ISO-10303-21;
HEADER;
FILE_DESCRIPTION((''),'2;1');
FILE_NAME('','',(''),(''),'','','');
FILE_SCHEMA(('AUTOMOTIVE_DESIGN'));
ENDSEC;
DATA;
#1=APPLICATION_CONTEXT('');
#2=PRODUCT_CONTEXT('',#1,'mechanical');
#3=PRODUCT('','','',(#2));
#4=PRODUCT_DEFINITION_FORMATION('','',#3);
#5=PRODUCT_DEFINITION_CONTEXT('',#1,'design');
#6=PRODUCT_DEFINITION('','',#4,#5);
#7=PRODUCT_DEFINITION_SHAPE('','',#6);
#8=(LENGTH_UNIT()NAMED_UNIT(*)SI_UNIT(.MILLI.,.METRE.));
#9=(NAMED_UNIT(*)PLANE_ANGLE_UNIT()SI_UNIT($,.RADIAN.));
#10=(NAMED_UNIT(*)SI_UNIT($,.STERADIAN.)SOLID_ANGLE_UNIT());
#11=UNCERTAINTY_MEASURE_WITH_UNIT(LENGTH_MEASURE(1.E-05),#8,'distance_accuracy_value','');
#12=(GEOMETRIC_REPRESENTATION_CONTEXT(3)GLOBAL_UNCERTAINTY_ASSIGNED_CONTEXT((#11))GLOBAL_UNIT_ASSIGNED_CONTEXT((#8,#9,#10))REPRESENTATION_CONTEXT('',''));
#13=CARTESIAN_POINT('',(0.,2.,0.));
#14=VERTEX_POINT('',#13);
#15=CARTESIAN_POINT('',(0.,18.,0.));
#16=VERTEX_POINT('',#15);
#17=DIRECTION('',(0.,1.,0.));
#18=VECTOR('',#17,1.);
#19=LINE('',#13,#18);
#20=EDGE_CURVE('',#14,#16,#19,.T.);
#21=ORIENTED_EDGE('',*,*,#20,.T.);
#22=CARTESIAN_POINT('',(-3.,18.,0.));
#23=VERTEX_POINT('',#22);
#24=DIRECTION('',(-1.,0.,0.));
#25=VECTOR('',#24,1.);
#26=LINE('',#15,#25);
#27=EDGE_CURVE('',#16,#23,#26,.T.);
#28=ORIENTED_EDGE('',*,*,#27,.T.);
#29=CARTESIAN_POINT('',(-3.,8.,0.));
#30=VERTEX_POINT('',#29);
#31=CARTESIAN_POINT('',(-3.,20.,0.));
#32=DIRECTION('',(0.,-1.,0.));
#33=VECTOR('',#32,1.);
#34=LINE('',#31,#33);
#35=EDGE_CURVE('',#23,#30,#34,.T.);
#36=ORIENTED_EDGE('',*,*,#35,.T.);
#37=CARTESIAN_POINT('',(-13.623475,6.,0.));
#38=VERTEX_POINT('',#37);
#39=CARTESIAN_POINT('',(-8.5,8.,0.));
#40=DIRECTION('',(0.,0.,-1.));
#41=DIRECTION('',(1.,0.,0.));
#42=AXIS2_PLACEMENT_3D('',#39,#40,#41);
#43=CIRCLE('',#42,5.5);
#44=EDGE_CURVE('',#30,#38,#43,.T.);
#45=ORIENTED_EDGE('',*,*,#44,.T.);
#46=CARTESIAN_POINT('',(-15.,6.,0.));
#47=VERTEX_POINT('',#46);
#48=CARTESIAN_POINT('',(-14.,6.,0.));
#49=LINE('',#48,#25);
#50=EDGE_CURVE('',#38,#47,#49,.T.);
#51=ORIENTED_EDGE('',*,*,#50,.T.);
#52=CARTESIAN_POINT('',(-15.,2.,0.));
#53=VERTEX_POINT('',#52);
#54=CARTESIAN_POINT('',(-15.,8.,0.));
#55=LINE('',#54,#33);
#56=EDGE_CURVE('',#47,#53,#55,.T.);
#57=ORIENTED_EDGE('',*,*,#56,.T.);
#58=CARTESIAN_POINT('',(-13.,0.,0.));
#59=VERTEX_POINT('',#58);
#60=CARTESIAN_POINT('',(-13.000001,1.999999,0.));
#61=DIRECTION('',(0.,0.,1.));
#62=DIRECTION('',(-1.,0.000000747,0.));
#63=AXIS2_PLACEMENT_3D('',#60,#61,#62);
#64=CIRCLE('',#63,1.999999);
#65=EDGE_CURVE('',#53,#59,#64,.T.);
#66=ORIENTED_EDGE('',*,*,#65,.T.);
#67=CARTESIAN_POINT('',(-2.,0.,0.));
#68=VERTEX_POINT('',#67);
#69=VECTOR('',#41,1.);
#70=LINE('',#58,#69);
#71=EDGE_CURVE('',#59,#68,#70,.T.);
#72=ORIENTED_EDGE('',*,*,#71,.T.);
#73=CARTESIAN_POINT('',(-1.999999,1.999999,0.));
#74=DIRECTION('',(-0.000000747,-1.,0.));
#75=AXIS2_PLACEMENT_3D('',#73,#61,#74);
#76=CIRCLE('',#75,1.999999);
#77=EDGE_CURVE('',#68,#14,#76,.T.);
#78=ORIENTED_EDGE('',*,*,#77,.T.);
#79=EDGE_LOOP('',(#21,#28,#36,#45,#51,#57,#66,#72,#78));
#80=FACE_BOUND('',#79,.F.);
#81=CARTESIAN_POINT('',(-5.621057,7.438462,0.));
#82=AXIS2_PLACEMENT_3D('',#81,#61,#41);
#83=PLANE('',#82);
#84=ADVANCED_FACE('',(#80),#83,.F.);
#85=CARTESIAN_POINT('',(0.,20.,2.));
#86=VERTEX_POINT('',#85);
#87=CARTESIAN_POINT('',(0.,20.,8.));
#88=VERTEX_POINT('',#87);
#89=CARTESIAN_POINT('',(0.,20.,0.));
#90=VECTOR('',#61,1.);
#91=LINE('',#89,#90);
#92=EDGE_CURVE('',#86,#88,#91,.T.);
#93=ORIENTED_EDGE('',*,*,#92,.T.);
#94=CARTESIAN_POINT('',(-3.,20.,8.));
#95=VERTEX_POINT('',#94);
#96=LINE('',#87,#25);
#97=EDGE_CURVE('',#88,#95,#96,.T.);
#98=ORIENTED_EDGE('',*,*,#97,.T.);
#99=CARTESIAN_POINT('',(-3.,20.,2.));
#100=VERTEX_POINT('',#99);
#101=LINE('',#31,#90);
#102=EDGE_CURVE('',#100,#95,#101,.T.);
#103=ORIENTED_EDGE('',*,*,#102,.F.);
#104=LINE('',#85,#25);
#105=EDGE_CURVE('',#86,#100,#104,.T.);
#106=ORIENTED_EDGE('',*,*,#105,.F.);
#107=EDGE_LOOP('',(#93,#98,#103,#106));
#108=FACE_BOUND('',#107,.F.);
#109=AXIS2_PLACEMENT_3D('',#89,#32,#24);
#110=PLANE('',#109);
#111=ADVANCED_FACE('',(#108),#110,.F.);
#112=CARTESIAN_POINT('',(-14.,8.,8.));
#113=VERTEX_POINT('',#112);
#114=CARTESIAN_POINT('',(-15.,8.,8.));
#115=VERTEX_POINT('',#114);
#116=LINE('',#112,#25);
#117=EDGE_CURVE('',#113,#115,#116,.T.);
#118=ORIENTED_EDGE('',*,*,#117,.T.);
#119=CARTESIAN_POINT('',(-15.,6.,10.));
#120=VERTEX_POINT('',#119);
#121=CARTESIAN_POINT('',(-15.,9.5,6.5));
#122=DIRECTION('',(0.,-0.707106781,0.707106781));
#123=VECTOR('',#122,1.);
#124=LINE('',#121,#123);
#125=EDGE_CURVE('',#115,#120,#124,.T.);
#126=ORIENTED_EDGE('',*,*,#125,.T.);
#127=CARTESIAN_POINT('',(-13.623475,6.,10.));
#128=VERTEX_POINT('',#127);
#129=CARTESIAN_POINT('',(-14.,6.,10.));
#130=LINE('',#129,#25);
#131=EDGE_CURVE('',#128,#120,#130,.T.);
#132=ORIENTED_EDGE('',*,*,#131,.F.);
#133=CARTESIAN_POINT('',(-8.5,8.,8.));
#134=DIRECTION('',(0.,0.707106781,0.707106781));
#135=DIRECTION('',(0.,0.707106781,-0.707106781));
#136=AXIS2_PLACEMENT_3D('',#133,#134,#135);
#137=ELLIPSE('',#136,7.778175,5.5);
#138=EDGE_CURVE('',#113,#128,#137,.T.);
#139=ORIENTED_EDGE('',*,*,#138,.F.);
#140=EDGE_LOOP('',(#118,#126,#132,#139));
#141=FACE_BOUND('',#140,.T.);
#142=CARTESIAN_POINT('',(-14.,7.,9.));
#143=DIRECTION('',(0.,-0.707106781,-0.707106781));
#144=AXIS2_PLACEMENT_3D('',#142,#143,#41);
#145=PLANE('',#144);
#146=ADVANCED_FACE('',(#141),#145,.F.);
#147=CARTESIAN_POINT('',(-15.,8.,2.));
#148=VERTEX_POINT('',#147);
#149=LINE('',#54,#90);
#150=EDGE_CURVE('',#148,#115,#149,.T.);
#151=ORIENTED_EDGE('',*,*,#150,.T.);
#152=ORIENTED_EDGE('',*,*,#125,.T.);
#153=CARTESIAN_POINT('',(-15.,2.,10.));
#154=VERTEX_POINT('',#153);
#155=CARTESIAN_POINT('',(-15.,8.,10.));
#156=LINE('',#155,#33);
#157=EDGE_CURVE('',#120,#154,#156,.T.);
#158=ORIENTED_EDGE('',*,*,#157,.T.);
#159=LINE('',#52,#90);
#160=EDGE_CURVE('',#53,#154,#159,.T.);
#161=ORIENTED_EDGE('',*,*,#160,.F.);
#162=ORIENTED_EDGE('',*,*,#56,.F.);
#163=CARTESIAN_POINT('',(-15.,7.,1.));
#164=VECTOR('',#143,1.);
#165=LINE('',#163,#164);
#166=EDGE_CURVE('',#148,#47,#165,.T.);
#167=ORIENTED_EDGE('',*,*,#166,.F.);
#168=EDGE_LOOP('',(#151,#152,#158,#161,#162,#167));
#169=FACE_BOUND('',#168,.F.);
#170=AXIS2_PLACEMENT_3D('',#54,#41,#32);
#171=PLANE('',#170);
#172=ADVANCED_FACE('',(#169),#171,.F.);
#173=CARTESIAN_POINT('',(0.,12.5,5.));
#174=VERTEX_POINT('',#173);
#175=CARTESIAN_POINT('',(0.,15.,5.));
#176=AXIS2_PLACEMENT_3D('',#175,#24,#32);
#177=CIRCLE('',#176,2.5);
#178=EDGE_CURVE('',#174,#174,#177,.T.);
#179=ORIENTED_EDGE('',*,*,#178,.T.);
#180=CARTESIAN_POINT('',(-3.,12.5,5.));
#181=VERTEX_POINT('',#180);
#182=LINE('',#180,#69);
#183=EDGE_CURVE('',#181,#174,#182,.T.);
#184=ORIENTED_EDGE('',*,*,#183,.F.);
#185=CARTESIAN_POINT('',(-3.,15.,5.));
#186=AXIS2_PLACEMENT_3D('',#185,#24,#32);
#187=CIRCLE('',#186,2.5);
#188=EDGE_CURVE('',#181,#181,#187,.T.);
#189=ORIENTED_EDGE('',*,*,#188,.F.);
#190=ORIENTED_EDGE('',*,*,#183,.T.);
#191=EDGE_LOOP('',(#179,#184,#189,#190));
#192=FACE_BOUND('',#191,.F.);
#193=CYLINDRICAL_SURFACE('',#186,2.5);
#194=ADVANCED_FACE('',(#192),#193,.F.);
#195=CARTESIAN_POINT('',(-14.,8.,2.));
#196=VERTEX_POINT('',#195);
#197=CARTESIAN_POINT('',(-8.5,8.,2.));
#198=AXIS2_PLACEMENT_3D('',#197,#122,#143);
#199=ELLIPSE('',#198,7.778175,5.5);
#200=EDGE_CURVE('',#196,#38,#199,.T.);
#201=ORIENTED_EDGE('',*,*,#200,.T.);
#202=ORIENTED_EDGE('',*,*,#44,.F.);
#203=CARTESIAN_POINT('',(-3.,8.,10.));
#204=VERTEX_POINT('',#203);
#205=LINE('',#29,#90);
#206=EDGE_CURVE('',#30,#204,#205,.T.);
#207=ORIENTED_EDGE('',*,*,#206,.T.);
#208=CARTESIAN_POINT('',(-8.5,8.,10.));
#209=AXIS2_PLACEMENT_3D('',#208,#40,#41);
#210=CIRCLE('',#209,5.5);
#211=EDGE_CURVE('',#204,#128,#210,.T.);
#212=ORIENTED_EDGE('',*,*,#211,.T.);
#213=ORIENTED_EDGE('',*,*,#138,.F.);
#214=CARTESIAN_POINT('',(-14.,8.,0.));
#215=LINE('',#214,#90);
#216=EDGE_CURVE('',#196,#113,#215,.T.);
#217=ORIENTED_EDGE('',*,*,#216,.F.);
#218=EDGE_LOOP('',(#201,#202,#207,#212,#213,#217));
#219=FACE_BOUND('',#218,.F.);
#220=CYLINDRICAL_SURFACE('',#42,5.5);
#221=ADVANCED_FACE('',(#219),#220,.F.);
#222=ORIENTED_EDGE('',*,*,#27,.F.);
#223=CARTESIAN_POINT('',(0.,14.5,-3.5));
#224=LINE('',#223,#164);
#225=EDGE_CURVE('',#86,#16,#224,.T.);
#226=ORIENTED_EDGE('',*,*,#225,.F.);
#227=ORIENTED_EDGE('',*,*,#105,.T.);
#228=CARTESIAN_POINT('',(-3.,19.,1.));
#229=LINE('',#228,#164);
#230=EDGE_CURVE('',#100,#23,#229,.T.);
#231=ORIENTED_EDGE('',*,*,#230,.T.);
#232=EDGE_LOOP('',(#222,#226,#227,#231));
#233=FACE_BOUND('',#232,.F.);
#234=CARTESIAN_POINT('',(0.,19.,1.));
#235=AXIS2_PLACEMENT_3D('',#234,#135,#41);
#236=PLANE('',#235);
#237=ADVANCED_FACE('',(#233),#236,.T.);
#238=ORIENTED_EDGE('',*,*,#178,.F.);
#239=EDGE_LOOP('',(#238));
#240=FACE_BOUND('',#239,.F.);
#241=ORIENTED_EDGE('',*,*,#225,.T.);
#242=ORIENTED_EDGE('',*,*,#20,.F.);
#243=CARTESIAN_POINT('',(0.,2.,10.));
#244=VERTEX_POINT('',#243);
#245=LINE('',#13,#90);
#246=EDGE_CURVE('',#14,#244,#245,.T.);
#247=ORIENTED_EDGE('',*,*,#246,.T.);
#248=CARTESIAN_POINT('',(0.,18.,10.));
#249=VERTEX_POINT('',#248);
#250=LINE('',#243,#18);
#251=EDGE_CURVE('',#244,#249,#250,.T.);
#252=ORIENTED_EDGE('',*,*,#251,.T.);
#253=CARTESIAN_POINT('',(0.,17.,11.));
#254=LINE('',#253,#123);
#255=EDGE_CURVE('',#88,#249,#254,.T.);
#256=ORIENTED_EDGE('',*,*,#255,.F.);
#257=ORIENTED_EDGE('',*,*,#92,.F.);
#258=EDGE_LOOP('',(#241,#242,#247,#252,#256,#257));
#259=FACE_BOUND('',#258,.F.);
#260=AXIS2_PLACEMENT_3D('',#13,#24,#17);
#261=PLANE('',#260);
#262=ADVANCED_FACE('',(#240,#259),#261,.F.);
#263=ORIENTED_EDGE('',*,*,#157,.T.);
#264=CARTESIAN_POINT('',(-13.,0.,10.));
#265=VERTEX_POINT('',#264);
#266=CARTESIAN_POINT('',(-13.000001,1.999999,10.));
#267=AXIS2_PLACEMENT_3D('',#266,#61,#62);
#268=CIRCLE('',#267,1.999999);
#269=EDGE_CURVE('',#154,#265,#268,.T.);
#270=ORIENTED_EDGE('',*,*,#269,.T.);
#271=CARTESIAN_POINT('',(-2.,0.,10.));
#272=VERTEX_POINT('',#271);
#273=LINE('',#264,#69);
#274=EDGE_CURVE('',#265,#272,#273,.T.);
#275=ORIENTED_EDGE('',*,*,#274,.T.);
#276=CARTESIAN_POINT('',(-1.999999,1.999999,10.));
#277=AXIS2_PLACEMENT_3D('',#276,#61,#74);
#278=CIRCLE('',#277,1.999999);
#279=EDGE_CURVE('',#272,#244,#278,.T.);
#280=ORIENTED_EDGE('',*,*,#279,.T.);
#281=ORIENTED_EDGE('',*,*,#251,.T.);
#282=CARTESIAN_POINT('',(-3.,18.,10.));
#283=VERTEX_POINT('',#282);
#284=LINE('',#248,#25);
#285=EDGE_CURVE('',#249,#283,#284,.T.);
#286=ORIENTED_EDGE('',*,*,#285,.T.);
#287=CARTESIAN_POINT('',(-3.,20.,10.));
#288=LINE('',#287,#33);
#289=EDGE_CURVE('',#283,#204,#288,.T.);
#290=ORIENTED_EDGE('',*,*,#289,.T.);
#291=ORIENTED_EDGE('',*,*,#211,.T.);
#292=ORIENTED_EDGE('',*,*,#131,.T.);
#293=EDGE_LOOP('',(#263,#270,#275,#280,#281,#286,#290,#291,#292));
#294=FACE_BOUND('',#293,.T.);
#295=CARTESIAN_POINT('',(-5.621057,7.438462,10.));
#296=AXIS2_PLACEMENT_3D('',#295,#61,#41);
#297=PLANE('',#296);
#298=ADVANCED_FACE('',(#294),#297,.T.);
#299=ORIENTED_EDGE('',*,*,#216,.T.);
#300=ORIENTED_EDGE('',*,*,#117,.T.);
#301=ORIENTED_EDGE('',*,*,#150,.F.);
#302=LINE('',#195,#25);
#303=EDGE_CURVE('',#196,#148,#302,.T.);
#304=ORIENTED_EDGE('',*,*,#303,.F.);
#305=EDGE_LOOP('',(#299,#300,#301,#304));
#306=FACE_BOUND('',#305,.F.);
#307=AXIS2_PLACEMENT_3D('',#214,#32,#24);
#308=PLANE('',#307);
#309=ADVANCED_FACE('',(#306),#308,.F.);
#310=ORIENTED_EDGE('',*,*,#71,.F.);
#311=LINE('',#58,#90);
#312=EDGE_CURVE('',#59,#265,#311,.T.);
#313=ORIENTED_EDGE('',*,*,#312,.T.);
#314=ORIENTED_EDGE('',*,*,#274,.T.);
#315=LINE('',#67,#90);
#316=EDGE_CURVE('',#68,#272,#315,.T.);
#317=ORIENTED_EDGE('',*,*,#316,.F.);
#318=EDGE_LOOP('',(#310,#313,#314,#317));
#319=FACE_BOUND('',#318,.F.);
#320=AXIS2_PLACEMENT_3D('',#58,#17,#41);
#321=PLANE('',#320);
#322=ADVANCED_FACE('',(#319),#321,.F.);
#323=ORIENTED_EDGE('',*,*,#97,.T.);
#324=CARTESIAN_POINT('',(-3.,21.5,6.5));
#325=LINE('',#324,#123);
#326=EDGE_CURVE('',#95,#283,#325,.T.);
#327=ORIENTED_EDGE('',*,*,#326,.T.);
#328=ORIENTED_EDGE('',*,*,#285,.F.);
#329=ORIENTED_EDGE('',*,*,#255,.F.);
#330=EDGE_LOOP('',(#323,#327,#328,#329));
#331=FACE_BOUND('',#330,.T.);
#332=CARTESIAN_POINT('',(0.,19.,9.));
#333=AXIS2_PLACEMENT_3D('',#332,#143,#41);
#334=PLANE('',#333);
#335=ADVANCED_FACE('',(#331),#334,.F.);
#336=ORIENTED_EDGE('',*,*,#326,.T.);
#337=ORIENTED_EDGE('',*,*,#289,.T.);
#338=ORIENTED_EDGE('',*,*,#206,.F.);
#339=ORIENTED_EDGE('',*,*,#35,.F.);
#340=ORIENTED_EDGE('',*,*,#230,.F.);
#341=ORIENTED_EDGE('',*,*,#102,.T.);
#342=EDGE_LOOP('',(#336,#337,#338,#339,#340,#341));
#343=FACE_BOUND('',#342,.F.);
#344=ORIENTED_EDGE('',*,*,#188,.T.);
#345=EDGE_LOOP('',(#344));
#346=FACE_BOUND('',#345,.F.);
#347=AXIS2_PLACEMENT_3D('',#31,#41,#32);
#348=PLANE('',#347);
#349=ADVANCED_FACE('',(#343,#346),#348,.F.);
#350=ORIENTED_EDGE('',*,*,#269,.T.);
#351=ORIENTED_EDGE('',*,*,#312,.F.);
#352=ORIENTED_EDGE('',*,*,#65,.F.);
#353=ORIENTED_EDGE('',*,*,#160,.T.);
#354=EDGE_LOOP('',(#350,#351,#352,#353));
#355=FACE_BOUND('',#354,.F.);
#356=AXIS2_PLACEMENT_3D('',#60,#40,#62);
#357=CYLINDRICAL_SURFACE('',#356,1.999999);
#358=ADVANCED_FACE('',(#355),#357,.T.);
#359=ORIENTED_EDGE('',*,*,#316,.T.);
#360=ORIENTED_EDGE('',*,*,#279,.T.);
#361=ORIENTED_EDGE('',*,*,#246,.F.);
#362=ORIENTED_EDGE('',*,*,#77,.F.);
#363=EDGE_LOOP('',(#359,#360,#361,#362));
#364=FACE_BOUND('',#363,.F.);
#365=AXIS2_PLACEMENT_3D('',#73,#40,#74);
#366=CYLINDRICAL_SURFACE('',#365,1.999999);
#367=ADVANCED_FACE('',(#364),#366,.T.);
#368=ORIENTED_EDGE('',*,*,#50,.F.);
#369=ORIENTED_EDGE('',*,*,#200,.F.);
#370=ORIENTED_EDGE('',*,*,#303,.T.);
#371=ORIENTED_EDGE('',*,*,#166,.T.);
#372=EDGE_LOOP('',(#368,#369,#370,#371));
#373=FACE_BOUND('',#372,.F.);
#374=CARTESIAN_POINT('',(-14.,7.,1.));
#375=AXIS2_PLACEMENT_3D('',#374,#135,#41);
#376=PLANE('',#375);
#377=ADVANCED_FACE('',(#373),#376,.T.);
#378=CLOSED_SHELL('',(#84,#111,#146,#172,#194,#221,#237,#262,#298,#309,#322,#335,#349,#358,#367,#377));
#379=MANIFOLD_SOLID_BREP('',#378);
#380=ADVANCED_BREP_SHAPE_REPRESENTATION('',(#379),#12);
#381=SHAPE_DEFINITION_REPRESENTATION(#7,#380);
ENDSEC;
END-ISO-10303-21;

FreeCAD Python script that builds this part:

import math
import FreeCAD as App
import Part
import Sketcher

V = App.Vector
Q = App.Units.Quantity


def edges_at(feature, points):
    """Names of the edges that pass closest to the given points."""
    edges = feature.Shape.Edges
    near = lambda p: min(range(len(edges)), key=lambda i: edges[i].distToShape(Part.Vertex(*p))[0])
    return sorted({f"Edge{near(p) + 1}" for p in points})

doc = App.newDocument("Part")
body = doc.addObject("PartDesign::Body", "Body")

sketch1 = doc.addObject("Sketcher::SketchObject", "Sketch")
body.addObject(sketch1)
sketch1.AttachmentSupport = (doc.XY_Plane, [""])
sketch1.MapMode = "FlatFace"
sketch1.addGeometry([
    Part.ArcOfCircle(Part.Circle(V(-1.999999, 1.999999, 0), V(0, 0, 1), 1.999999), math.radians(-90.000043), math.radians(0.000043)),
    Part.LineSegment(V(0, 2, 0), V(0, 20, 0)),
    Part.LineSegment(V(0, 20, 0), V(-3, 20, 0)),
    Part.LineSegment(V(-3, 20, 0), V(-3, 8, 0)),
    Part.ArcOfCircle(Part.Circle(V(-8.5, 8, 0), V(0, 0, 1), 5.5), math.radians(180), math.radians(360)),
    Part.LineSegment(V(-14, 8, 0), V(-15, 8, 0)),
    Part.LineSegment(V(-15, 8, 0), V(-15, 2, 0)),
    Part.ArcOfCircle(Part.Circle(V(-13.000001, 1.999999, 0), V(0, 0, 1), 1.999999), math.radians(179.999957), math.radians(270.000043)),
    Part.LineSegment(V(-13, 0, 0), V(-2, 0, 0)),
], False)
sketch1.addConstraint([
    Sketcher.Constraint("Tangent", 0, 2, 1, 1),
    Sketcher.Constraint("Coincident", 1, 2, 2, 1),
    Sketcher.Constraint("Coincident", 2, 2, 3, 1),
    Sketcher.Constraint("Tangent", 3, 2, 4, 2),
    Sketcher.Constraint("Coincident", 4, 1, 5, 1),
    Sketcher.Constraint("Coincident", 5, 2, 6, 1),
    Sketcher.Constraint("Tangent", 6, 2, 7, 1),
    Sketcher.Constraint("Tangent", 7, 2, 8, 1),
    Sketcher.Constraint("Tangent", 8, 2, 0, 1),
    Sketcher.Constraint("Vertical", 1),
    Sketcher.Constraint("Horizontal", 2),
    Sketcher.Constraint("Vertical", 3),
    Sketcher.Constraint("Horizontal", 5),
    Sketcher.Constraint("Vertical", 6),
    Sketcher.Constraint("Horizontal", 8),
    Sketcher.Constraint("Equal", 0, 7),
    Sketcher.Constraint("PointOnObject", 0, 2, -2),
    Sketcher.Constraint("PointOnObject", 7, 2, -1),
    Sketcher.Constraint("Horizontal", 3, 2, 4, 1),
    Sketcher.Constraint("Radius", 0, Q("1.999999 mm")),
    Sketcher.Constraint("Radius", 4, Q("5.5 mm")),
    Sketcher.Constraint("DistanceX", 2, 2, 2, 1, Q("3 mm")),
    Sketcher.Constraint("DistanceX", 5, 2, 5, 1, Q("1 mm")),
    Sketcher.Constraint("DistanceY", 1, 1, 1, 2, Q("18 mm")),
    Sketcher.Constraint("DistanceY", 3, 2, 3, 1, Q("12 mm")),
])
pad1 = doc.addObject("PartDesign::Pad", "Pad")
body.addObject(pad1)
pad1.Profile = sketch1
pad1.Length = 10
doc.recompute()

chamfer = doc.addObject("PartDesign::Chamfer", "Chamfer")
body.addObject(chamfer)
chamfer.Base = (pad1, edges_at(pad1, [
    (-14.5, 8, 10),
    (-14.5, 8, 0),
    (-1.5, 20, 0),
    (-1.5, 20, 10),
]))
chamfer.Size = 2

sketch2 = doc.addObject("Sketcher::SketchObject", "Sketch001")
body.addObject(sketch2)
sketch2.AttachmentSupport = (doc.YZ_Plane, [""])
sketch2.MapMode = "FlatFace"
sketch2.AttachmentOffset = App.Placement(V(0, 0, -3), App.Rotation())
sketch2.addGeometry(Part.Circle(V(15, 5, 0), V(0, 0, 1), 2.5), False)
sketch2.addConstraint([
    Sketcher.Constraint("Diameter", 0, Q("5 mm")),
    Sketcher.Constraint("DistanceX", -1, 1, 0, 3, Q("15 mm")),
    Sketcher.Constraint("DistanceY", -1, 1, 0, 3, Q("5 mm")),
])
pocket1 = doc.addObject("PartDesign::Pocket", "Pocket")
body.addObject(pocket1)
pocket1.Profile = sketch2
pocket1.Length = 25
pocket1.Reversed = True

doc.recompute()
